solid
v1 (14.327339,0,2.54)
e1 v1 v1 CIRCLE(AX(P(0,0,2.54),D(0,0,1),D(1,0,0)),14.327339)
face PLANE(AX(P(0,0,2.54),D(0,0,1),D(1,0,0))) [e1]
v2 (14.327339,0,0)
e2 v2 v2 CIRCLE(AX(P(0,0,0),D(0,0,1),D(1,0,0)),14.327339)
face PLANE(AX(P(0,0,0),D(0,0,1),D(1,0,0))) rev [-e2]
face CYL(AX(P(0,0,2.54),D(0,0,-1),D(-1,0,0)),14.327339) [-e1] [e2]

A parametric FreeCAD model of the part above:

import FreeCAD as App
import Part
import Sketcher
from FreeCAD import Vector
Q = App.Units.Quantity

doc = App.newDocument("Part")
body = doc.addObject("PartDesign::Body", "Body")

sketch1 = doc.addObject("Sketcher::SketchObject", "Sketch")
body.addObject(sketch1)
sketch1.AttachmentSupport = (doc.XY_Plane, [""])
sketch1.MapMode = "FlatFace"
sketch1.addGeometry(Part.Circle(Vector(0, 0, 0), Vector(0, 0, 1), 14), False)
sketch1.addConstraint(Sketcher.Constraint("Coincident", 0, 3, -1, 1))
sketch1.addConstraint(Sketcher.Constraint("Diameter", 0, Q("28.654678 mm")))
pad1 = doc.addObject("PartDesign::Pad", "Pad")
body.addObject(pad1)
pad1.Profile = sketch1
pad1.Length = Q("0.1 in")

doc.recompute()
